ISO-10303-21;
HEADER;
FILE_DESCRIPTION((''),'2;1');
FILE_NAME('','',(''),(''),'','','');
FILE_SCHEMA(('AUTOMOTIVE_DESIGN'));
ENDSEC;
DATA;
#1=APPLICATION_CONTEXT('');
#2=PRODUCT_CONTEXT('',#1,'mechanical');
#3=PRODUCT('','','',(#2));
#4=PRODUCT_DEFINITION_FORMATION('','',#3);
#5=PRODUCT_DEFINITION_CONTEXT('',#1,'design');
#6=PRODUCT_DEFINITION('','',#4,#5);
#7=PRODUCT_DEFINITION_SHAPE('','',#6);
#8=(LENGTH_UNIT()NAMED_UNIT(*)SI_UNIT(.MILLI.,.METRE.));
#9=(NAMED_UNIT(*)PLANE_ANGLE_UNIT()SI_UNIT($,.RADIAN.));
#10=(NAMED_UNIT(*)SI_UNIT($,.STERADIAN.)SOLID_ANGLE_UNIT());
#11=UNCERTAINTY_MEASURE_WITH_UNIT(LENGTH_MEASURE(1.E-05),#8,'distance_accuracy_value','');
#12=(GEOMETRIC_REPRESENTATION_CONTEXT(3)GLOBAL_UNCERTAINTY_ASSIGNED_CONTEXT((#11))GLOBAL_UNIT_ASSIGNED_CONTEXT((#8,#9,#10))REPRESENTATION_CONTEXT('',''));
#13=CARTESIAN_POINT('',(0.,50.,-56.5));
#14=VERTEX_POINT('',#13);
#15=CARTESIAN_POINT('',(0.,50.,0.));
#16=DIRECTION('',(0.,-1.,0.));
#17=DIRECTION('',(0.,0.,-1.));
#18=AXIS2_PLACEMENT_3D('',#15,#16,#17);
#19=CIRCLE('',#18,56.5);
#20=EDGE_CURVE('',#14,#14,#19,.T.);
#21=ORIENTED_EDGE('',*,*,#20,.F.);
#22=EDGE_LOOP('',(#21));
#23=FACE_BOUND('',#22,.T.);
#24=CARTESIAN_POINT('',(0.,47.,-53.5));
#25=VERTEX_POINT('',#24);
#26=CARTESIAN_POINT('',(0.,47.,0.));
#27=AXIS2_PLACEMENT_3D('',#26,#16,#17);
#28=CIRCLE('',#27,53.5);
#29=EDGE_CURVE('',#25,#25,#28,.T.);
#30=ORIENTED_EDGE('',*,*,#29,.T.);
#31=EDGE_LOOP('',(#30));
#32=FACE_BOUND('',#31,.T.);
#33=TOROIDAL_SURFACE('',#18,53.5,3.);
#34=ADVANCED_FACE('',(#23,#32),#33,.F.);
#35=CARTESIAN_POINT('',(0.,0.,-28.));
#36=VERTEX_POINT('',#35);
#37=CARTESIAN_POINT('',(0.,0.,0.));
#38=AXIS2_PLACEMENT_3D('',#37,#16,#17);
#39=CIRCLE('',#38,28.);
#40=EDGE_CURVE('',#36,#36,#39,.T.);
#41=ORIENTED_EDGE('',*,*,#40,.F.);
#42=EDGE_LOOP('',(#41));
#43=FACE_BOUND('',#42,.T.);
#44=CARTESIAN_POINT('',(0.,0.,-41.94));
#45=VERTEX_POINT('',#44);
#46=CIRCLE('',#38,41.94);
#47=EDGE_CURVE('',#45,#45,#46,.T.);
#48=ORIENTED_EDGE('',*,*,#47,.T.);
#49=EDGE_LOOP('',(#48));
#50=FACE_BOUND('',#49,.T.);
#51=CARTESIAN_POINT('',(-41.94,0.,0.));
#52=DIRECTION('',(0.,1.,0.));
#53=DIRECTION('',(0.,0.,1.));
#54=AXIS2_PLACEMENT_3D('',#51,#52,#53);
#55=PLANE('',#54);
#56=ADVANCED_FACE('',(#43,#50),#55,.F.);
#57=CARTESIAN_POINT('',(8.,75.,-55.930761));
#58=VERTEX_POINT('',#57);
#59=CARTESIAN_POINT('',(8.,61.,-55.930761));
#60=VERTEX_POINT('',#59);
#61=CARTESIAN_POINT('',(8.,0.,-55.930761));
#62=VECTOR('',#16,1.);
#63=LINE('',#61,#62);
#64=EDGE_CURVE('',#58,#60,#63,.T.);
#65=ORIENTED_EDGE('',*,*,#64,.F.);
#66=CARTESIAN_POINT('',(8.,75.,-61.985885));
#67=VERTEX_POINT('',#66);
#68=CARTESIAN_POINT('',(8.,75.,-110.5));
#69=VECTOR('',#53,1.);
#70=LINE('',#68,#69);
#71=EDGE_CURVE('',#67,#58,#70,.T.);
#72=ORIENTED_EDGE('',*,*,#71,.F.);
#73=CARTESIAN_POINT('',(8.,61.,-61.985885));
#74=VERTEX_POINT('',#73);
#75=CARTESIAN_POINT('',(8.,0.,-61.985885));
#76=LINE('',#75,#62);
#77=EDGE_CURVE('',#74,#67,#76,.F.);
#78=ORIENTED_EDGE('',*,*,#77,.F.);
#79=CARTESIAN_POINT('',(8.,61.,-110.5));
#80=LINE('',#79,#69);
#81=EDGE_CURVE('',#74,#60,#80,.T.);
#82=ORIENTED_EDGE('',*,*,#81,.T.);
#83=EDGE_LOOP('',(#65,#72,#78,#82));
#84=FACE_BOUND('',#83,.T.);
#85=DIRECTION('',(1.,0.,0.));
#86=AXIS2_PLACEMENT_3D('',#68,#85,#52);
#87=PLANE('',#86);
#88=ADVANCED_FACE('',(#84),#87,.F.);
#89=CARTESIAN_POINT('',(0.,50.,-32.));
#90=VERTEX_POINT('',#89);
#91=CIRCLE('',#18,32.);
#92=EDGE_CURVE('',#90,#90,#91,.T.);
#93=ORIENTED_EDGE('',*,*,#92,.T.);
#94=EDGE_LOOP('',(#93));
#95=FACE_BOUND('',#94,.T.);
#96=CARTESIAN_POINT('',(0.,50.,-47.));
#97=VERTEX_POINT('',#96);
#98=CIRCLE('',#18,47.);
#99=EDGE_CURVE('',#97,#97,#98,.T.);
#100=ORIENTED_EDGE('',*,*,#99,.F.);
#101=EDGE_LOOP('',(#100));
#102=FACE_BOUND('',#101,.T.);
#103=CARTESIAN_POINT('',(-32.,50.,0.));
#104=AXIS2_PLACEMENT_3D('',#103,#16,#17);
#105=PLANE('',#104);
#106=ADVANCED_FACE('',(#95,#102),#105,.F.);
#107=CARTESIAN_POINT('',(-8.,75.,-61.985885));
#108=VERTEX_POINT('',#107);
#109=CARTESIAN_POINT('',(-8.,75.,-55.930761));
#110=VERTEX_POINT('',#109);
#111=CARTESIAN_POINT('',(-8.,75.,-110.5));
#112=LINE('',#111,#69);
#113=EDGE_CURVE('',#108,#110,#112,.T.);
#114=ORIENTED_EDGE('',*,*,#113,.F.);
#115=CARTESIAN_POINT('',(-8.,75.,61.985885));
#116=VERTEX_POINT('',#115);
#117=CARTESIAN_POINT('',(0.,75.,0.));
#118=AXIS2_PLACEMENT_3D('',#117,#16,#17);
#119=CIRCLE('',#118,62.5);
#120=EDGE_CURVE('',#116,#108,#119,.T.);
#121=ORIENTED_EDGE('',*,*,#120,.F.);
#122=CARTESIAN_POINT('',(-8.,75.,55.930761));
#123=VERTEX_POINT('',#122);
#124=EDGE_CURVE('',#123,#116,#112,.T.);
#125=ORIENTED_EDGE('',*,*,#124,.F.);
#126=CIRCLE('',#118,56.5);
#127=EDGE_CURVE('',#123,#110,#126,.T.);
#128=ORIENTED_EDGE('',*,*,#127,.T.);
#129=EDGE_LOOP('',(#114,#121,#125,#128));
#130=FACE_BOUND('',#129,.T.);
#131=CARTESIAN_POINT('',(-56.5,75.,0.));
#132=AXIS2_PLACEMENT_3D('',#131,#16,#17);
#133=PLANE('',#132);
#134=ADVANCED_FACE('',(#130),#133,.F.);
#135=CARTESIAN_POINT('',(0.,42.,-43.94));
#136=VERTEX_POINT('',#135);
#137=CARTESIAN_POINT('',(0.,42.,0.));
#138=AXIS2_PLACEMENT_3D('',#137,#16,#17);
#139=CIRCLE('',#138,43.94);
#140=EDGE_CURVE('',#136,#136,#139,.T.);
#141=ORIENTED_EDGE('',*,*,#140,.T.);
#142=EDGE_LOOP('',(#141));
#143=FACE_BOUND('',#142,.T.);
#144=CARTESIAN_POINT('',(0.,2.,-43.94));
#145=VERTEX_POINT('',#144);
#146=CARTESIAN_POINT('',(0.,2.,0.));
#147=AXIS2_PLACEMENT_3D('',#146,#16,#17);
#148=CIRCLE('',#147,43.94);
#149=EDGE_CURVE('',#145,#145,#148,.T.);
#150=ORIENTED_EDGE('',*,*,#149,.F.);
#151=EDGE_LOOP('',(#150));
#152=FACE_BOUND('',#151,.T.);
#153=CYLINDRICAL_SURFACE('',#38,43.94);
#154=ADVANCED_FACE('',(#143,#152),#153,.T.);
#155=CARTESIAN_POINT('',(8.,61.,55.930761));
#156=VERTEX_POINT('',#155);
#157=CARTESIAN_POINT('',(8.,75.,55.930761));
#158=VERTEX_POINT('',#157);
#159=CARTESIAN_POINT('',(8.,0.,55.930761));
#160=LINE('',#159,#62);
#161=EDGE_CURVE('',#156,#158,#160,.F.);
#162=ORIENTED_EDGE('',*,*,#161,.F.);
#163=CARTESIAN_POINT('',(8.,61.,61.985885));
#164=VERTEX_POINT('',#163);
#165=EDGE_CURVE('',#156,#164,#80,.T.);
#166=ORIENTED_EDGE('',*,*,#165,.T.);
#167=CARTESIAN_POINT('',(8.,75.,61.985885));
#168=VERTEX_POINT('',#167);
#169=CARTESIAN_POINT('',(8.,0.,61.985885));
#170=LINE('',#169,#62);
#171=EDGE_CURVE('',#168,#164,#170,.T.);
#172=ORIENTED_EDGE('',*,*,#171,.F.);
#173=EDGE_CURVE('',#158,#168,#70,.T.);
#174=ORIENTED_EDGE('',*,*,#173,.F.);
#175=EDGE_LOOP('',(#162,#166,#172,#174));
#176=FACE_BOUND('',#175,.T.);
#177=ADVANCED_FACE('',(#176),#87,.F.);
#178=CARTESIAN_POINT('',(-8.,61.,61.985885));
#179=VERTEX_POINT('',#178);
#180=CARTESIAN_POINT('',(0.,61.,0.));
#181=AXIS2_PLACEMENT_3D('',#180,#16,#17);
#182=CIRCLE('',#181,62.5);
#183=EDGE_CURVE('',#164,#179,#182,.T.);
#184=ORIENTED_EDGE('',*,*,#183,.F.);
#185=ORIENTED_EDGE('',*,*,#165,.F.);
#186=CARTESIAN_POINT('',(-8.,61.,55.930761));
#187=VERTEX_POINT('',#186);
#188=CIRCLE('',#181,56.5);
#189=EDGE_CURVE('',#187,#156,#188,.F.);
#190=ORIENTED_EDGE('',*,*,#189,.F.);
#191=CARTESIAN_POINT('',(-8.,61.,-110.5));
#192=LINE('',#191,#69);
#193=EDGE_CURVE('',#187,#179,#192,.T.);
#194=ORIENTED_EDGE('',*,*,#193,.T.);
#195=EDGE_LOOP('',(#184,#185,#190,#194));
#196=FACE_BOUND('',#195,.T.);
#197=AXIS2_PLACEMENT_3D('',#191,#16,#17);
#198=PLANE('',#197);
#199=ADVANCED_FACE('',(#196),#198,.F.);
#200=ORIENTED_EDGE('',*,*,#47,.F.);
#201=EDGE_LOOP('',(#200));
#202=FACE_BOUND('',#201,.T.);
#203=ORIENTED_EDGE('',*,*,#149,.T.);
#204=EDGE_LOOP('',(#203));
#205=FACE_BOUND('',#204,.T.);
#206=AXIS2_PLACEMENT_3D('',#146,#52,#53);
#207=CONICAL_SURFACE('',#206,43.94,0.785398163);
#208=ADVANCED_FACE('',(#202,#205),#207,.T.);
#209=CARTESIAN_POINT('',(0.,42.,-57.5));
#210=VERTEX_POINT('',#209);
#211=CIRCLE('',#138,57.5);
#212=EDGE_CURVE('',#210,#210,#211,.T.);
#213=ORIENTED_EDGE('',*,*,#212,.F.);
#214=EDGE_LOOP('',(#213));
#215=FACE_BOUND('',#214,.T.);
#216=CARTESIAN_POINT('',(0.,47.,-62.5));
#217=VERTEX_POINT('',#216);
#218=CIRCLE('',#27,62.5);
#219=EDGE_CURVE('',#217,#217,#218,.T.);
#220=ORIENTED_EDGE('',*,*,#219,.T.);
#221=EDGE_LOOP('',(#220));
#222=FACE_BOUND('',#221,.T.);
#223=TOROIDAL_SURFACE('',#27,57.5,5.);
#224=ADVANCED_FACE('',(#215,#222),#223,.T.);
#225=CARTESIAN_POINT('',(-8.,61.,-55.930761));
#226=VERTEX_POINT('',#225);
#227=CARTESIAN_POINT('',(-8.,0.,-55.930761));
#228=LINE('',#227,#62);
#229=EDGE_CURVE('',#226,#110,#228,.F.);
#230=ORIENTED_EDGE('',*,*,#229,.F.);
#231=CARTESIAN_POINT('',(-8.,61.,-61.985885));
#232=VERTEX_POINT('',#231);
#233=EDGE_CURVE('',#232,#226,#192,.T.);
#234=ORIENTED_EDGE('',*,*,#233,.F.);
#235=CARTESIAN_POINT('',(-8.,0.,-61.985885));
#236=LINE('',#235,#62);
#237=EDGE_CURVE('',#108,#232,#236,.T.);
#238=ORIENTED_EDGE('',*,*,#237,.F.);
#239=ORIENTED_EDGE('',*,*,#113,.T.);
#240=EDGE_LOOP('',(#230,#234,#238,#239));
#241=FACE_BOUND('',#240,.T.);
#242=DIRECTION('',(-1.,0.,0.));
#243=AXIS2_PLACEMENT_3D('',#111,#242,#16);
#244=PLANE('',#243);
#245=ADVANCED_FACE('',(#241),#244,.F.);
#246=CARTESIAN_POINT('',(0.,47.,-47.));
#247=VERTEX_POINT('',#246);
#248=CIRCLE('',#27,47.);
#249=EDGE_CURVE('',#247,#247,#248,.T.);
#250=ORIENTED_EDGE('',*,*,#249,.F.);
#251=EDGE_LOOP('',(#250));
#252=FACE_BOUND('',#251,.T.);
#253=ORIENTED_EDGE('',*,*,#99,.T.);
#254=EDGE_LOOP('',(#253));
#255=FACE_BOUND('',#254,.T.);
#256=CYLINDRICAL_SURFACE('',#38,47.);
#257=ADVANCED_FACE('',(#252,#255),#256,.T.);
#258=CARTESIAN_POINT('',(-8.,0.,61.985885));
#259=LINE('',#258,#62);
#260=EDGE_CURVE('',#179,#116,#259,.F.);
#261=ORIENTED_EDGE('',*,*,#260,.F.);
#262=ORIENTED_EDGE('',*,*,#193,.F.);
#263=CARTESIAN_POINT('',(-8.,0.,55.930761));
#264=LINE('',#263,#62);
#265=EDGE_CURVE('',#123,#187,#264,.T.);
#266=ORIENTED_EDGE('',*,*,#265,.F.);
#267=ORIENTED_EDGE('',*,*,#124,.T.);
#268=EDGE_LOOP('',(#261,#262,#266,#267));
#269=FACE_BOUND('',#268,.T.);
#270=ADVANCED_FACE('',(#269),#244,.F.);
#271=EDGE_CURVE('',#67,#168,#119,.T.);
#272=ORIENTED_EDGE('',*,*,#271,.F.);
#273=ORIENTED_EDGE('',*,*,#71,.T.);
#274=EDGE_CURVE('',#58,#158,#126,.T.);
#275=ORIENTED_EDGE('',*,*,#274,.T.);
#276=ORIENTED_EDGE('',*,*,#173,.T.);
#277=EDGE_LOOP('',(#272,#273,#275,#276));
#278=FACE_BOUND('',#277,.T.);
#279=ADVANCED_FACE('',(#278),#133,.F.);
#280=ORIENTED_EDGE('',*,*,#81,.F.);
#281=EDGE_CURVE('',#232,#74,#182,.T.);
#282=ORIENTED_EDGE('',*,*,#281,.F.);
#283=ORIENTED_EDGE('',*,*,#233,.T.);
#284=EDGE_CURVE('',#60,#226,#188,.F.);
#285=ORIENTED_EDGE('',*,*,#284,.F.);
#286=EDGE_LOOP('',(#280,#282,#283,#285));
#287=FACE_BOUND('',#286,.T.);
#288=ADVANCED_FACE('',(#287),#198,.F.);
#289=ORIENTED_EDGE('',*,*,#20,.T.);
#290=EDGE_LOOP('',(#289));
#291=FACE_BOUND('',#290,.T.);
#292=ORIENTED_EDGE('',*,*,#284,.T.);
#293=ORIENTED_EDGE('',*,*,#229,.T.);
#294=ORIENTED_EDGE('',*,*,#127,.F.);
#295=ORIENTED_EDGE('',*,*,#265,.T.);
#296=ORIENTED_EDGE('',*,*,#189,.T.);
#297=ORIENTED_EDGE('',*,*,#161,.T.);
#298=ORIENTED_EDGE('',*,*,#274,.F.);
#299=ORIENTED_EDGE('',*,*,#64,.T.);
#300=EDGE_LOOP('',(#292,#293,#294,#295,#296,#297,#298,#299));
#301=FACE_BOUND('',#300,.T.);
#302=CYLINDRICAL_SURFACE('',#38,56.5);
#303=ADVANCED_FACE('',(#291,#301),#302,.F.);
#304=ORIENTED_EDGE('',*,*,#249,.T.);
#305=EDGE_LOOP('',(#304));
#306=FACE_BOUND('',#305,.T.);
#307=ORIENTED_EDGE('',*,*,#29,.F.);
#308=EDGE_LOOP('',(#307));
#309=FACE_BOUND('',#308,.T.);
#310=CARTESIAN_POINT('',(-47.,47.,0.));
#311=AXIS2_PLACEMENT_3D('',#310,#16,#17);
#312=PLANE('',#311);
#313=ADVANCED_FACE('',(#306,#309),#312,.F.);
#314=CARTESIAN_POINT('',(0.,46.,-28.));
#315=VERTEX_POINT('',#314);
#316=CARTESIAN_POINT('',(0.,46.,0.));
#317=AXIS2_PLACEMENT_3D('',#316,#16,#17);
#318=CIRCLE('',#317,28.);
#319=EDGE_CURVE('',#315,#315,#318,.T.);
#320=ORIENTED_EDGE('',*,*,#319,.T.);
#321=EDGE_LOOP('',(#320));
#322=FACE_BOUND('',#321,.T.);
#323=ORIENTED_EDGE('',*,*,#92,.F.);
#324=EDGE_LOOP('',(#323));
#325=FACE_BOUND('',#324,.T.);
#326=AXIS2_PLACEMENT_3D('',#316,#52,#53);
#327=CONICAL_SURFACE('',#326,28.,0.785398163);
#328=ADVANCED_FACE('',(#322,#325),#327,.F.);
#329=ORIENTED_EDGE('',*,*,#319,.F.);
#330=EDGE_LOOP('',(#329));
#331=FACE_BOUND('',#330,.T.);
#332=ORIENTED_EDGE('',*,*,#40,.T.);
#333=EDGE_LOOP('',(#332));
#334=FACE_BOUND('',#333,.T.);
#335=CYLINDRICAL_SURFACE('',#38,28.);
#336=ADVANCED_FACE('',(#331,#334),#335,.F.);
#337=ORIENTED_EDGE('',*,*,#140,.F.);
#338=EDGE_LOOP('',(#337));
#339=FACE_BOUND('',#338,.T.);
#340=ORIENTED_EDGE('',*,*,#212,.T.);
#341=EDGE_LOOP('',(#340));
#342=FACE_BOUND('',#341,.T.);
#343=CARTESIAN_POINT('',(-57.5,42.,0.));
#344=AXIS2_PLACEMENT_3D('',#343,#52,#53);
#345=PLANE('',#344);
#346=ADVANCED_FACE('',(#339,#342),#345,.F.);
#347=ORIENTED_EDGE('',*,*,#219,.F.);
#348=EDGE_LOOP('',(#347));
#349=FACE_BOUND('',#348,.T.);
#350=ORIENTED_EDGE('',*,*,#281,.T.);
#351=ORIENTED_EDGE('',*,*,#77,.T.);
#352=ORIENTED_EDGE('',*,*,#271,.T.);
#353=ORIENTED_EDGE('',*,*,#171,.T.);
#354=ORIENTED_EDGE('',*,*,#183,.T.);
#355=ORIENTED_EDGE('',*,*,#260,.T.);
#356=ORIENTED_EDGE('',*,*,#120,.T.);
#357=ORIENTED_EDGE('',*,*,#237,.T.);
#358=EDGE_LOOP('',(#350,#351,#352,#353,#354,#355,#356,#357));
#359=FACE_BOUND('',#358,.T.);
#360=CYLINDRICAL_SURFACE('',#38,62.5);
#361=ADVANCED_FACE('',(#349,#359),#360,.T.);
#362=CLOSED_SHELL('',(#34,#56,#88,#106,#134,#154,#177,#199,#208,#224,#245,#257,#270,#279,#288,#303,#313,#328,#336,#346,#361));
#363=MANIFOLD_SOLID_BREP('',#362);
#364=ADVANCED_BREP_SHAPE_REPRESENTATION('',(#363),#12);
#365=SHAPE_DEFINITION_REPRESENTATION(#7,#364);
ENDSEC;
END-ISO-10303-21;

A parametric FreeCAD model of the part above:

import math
import FreeCAD as App
import Part
import Sketcher
Q = App.Units.Quantity


def add_polygon(sketch, points):
    """Adds a closed chain of lines whose ends are joined by coincident constraints."""
    first, n = sketch.GeometryCount, len(points)
    for a, b in zip(points, points[1:] + points[:1]):
        sketch.addGeometry(Part.LineSegment(App.Vector(*a, 0), App.Vector(*b, 0)), False)
    for i in range(n):
        sketch.addConstraint(Sketcher.Constraint("Coincident", first + i, 2, first + (i + 1) % n, 1))

doc = App.newDocument("Part")
body = doc.addObject("PartDesign::Body", "Body")

# Sketch on XY plane
sketch1 = body.newObject("Sketcher::SketchObject", "Sketch")
sketch1.AttachmentSupport = (doc.getObject("XY_Plane"), [""])
sketch1.MapMode = "FlatFace"
sketch1.addGeometry([
    Part.LineSegment(App.Vector(-28, 0, 0), App.Vector(-28, 46, 0)),  # 0
    Part.LineSegment(App.Vector(-28, 46, 0), App.Vector(-32, 50, 0)),  # 1
    Part.LineSegment(App.Vector(-32, 50, 0), App.Vector(-47, 50, 0)),  # 2
    Part.LineSegment(App.Vector(-47, 50, 0), App.Vector(-47, 47, 0)),  # 3
    Part.LineSegment(App.Vector(-47, 47, 0), App.Vector(-53.5, 47, 0)),  # 4
    Part.ArcOfCircle(Part.Circle(App.Vector(-53.5, 50, 0), App.Vector(0, 0, 1), 3), math.radians(180), math.radians(270)),  # 5
    Part.LineSegment(App.Vector(-56.5, 50, 0), App.Vector(-56.5, 75, 0)),  # 6
    Part.LineSegment(App.Vector(-56.5, 75, 0), App.Vector(-62.5, 75, 0)),  # 7
    Part.LineSegment(App.Vector(-62.5, 75, 0), App.Vector(-62.5, 47, 0)),  # 8
    Part.ArcOfCircle(Part.Circle(App.Vector(-57.5, 47, 0), App.Vector(0, 0, 1), 5), math.radians(180), math.radians(270)),  # 9
    Part.LineSegment(App.Vector(-57.5, 42, 0), App.Vector(-43.9, 42, 0)),  # 10
    Part.LineSegment(App.Vector(-43.9, 42, 0), App.Vector(-43.9, 2, 0)),  # 11
    Part.LineSegment(App.Vector(-43.9, 2, 0), App.Vector(-41.9, 0, 0)),  # 12
    Part.LineSegment(App.Vector(-41.9, 0, 0), App.Vector(-28, 0, 0)),  # 13
], False)
sketch1.addConstraint([
    Sketcher.Constraint("Coincident", 0, 2, 1, 1),
    Sketcher.Constraint("Coincident", 1, 2, 2, 1),
    Sketcher.Constraint("Coincident", 2, 2, 3, 1),
    Sketcher.Constraint("Coincident", 3, 2, 4, 1),
    Sketcher.Constraint("Tangent", 4, 2, 5, 2),
    Sketcher.Constraint("Tangent", 5, 1, 6, 1),
    Sketcher.Constraint("Coincident", 6, 2, 7, 1),
    Sketcher.Constraint("Coincident", 7, 2, 8, 1),
    Sketcher.Constraint("Tangent", 8, 2, 9, 1),
    Sketcher.Constraint("Tangent", 9, 2, 10, 1),
    Sketcher.Constraint("Coincident", 10, 2, 11, 1),
    Sketcher.Constraint("Coincident", 11, 2, 12, 1),
    Sketcher.Constraint("Coincident", 12, 2, 13, 1),
    Sketcher.Constraint("Coincident", 13, 2, 0, 1),
    Sketcher.Constraint("Vertical", 0),
    Sketcher.Constraint("Horizontal", 2),
    Sketcher.Constraint("Vertical", 3),
    Sketcher.Constraint("Horizontal", 4),
    Sketcher.Constraint("Vertical", 6),
    Sketcher.Constraint("Horizontal", 7),
    Sketcher.Constraint("Vertical", 8),
    Sketcher.Constraint("Horizontal", 10),
    Sketcher.Constraint("Vertical", 11),
    Sketcher.Constraint("Horizontal", 13),
    Sketcher.Constraint("PointOnObject", 12, 2, -1),
    Sketcher.Constraint("Parallel", 1, 12),
    Sketcher.Constraint("Horizontal", 5, 3, 1, 2),
    Sketcher.Constraint("Horizontal", 9, 3, 3, 2),
    Sketcher.Constraint("Radius", 5, 3.0),
    Sketcher.Constraint("Radius", 9, 5.0),
    Sketcher.Constraint("DistanceX", 2, 2, 2, 1, 15.0),
    Sketcher.Constraint("DistanceX", 7, 2, 7, 1, 6.0),
    Sketcher.Constraint("DistanceY", 0, 1, 0, 2, 46.0),
    Sketcher.Constraint("DistanceY", 6, 1, 6, 2, 25.0),
    Sketcher.Constraint("DistanceY", 11, 2, 11, 1, 40.0),
    Sketcher.Constraint("Angle", 1, Q("135 deg")),
    Sketcher.Constraint("DistanceX", 4, 2, 4, 1, 6.5),
    Sketcher.Constraint("DistanceY", -1, 1, 5, 3, 50.0),
    Sketcher.Constraint("DistanceX", 0, 2, -1, 1, 28.0),
    Sketcher.Constraint("DistanceX", 10, 1, 10, 2, 13.56),
])
revolution = body.newObject("PartDesign::Revolution", "Revolution")
revolution.Profile = sketch1
revolution.ReferenceAxis = (sketch1, ["V_Axis"])
revolution.Angle = 360

# Sketch on XY plane
sketch2 = body.newObject("Sketcher::SketchObject", "Sketch001")
sketch2.AttachmentSupport = (doc.getObject("XY_Plane"), [""])
sketch2.MapMode = "FlatFace"
add_polygon(sketch2, [(-8, 75), (-8, 61), (8, 61), (8, 75)])  # lines 0-3
sketch2.addConstraint([
    Sketcher.Constraint("Vertical", 0),
    Sketcher.Constraint("Horizontal", 1),
    Sketcher.Constraint("Vertical", 2),
    Sketcher.Constraint("Horizontal", 3),
    Sketcher.Constraint("DistanceX", 1, 1, 1, 2, 16.0),
    Sketcher.Constraint("DistanceY", 0, 2, 0, 1, 14.0),
    Sketcher.Constraint("DistanceX", 0, 2, -1, 1, 8.0),
    Sketcher.Constraint("DistanceY", -1, 1, 0, 2, 61.0),
])
pocket1 = body.newObject("PartDesign::Pocket", "Pocket")
pocket1.Profile = sketch2
pocket1.Length = 221
pocket1.Midplane = True

doc.recompute()
